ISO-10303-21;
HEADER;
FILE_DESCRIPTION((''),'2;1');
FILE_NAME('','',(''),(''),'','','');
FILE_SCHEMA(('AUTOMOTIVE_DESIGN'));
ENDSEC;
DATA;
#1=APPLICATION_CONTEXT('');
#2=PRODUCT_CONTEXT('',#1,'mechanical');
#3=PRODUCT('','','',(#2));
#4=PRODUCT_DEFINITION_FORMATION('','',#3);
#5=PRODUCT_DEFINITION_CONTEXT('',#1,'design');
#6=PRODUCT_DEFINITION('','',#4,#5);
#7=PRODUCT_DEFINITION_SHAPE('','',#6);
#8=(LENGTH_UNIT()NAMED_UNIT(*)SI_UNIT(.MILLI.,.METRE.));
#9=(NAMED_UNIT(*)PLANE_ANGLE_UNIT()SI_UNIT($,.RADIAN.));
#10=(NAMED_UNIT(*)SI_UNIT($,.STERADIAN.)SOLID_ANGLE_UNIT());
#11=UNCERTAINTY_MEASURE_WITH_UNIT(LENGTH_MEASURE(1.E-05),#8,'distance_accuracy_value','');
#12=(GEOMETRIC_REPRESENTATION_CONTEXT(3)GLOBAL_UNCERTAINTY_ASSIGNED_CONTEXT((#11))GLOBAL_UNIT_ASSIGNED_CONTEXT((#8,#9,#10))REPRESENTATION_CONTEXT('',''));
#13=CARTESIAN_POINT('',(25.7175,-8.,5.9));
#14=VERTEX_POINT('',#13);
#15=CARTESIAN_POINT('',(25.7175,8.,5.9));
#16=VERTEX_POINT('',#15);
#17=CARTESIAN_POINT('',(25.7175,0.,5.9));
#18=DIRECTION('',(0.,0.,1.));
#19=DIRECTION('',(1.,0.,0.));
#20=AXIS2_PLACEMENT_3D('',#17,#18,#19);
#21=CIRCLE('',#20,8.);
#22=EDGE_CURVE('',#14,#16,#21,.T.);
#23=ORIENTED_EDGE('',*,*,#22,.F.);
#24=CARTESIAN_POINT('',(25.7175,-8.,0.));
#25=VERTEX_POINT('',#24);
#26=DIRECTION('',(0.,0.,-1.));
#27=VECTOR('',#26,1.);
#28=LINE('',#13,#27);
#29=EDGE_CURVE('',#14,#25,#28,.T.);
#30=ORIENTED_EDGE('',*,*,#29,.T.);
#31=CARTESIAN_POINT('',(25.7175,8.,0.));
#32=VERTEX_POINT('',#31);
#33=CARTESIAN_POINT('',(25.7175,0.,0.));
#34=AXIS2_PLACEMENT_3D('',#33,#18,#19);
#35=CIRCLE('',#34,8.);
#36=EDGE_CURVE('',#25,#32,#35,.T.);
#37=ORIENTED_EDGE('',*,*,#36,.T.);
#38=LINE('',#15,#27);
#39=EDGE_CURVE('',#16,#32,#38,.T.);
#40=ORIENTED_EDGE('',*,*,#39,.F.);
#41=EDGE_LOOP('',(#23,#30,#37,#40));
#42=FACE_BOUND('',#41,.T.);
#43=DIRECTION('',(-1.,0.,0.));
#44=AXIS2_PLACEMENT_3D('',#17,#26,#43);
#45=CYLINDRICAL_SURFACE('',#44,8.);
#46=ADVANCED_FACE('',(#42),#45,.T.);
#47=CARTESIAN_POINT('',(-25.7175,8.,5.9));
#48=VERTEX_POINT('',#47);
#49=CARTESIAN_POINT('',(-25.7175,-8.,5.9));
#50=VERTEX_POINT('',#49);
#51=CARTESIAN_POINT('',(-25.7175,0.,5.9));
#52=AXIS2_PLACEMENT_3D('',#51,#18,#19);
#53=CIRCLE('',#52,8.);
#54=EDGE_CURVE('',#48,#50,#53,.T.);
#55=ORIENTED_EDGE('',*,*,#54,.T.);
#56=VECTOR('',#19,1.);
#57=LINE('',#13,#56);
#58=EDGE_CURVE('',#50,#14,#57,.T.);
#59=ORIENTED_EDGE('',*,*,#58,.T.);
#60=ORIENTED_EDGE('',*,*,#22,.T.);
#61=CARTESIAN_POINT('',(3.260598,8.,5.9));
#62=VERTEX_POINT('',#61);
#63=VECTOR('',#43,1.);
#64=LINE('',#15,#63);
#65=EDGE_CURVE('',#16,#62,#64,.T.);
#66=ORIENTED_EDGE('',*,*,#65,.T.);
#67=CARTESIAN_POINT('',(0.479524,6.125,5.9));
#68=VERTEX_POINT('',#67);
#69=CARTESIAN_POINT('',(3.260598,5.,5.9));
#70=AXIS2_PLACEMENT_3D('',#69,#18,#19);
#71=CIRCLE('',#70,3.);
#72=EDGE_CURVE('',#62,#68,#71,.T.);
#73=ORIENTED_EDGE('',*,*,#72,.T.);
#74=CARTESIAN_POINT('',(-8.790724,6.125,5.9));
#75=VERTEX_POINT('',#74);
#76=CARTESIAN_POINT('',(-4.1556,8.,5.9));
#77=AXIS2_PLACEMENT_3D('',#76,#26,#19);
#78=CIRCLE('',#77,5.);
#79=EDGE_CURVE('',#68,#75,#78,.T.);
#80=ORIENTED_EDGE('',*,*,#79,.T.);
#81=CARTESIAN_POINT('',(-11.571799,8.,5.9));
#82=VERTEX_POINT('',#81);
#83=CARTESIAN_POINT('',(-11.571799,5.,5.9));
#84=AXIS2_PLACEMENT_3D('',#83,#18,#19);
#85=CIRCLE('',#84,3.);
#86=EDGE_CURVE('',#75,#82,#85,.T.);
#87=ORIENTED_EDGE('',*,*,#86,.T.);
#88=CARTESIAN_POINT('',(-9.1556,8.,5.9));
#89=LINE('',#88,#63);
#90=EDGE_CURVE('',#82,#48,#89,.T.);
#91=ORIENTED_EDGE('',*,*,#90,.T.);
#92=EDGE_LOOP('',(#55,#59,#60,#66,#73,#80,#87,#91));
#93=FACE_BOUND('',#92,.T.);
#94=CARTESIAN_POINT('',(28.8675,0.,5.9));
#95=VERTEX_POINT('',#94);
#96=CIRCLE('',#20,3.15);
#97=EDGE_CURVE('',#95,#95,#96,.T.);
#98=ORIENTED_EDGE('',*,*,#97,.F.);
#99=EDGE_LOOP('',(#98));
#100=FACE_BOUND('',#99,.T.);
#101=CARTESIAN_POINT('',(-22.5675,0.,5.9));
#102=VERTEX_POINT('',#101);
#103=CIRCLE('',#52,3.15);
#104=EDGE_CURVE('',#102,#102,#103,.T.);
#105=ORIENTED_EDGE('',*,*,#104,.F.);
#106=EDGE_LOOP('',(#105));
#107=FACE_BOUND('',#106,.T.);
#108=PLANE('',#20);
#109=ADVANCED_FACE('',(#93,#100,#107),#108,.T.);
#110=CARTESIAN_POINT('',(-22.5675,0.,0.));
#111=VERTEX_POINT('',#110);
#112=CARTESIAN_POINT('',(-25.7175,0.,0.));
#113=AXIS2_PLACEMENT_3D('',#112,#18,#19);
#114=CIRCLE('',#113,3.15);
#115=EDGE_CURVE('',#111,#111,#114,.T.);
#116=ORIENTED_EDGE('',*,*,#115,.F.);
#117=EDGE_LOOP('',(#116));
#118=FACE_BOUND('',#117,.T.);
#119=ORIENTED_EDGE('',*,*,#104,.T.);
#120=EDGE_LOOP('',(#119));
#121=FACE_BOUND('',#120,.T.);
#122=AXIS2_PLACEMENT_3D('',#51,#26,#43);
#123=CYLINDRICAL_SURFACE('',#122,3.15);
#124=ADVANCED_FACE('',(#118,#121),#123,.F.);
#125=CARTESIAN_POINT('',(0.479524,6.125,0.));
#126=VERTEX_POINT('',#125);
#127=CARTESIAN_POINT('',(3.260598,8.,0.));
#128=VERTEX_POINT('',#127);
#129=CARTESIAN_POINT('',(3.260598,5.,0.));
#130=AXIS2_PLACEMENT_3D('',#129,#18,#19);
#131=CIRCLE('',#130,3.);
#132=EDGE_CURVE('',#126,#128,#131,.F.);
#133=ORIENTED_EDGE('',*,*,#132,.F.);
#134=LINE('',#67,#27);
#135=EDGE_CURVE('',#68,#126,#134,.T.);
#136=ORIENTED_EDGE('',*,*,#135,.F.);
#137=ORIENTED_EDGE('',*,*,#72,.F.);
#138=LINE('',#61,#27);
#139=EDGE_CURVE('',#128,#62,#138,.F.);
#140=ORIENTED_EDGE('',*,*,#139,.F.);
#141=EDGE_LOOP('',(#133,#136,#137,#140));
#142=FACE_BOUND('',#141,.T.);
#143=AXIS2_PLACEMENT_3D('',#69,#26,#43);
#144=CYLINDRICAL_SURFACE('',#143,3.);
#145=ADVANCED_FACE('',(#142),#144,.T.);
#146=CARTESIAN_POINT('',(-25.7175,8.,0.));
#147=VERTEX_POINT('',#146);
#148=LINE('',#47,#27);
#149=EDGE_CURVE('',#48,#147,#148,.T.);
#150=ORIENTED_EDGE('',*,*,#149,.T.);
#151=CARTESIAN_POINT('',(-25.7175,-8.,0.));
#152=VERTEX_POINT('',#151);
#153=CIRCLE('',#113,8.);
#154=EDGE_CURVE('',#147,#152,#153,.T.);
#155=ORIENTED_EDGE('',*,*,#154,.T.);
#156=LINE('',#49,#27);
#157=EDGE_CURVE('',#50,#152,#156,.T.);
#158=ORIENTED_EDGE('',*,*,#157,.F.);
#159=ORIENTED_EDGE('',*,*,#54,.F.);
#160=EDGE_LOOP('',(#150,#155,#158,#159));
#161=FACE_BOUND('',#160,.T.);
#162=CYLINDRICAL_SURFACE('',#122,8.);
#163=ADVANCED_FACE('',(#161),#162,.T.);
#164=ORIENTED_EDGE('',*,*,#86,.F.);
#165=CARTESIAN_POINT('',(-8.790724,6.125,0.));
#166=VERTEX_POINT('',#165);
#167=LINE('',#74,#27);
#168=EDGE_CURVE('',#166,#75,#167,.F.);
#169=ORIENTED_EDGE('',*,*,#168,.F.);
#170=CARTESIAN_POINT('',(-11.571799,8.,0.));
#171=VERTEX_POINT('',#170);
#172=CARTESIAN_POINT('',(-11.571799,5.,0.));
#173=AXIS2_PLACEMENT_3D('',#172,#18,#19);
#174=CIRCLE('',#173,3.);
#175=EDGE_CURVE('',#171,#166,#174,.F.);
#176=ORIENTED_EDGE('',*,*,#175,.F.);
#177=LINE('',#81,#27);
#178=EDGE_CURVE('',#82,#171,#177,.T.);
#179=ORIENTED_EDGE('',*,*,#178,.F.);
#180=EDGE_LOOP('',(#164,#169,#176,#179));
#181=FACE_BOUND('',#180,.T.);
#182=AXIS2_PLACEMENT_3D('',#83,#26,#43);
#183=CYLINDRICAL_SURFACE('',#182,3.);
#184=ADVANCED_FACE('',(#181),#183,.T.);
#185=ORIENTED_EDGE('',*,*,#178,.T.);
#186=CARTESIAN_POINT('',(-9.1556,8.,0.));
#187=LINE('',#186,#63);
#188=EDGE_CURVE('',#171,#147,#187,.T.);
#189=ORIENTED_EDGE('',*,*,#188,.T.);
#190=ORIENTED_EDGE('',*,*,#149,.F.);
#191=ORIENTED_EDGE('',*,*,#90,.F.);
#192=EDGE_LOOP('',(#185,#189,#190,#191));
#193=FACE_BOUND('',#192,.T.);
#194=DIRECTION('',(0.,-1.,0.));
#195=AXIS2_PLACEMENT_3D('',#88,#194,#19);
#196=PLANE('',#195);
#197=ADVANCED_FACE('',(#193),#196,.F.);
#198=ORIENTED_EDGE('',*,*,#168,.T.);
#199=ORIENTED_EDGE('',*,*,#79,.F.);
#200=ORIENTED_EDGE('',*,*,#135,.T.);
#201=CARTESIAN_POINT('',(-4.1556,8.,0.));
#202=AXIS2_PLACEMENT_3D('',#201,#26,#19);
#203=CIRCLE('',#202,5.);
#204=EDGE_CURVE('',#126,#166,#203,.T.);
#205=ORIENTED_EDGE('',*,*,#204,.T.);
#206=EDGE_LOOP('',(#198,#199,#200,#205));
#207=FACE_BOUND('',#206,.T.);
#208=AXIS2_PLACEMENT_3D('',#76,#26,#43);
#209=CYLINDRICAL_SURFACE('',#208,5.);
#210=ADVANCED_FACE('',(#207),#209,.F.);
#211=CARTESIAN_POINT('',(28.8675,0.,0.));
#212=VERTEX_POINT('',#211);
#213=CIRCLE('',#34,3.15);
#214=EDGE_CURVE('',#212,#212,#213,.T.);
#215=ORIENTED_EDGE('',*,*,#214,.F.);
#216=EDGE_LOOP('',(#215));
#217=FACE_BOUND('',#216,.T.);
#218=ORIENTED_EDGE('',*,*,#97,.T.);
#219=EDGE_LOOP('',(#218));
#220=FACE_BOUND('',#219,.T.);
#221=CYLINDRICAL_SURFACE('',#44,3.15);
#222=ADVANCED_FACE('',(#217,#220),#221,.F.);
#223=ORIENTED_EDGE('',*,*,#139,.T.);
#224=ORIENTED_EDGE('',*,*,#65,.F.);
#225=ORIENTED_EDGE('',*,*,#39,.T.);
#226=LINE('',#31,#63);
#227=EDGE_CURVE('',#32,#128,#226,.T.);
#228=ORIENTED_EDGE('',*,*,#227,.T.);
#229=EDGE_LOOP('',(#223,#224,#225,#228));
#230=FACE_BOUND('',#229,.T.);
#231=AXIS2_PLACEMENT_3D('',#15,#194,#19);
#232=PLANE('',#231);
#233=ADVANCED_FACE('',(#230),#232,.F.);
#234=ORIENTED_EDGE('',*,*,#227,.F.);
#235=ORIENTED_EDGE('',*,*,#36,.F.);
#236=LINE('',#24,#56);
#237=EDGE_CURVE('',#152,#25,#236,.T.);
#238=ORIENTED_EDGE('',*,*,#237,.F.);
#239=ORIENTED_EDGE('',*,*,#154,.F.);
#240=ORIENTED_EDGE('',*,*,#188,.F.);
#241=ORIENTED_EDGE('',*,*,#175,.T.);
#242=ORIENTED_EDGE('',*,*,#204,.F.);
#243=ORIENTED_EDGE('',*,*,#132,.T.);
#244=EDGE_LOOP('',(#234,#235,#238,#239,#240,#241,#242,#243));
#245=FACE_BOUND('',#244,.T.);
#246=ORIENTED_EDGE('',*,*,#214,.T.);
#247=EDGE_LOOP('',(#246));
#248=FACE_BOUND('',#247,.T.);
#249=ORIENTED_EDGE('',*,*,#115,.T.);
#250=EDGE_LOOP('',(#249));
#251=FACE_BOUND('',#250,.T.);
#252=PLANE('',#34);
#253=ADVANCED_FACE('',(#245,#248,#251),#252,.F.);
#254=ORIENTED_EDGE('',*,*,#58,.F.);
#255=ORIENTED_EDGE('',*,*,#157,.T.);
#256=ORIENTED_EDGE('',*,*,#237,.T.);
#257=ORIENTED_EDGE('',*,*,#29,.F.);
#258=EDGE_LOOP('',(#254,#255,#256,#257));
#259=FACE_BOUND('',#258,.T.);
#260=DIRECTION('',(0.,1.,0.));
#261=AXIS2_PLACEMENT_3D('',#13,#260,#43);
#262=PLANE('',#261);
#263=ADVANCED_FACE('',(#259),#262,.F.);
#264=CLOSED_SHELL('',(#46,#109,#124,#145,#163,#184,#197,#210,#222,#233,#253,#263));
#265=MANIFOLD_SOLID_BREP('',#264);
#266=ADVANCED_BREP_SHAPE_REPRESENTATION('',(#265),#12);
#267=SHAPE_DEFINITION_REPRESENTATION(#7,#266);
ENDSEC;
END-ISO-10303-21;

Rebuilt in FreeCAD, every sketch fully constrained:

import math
import FreeCAD as App
import Part
import Sketcher

V = App.Vector


def edges_at(feature, points):
    """Names of the edges that pass closest to the given points."""
    edges = feature.Shape.Edges
    near = lambda p: min(range(len(edges)), key=lambda i: edges[i].distToShape(Part.Vertex(*p))[0])
    return sorted({f"Edge{near(p) + 1}" for p in points})

doc = App.newDocument("Part")
body = doc.addObject("PartDesign::Body", "Body")

# Sketch on XY plane
sketch1 = doc.addObject("Sketcher::SketchObject", "Sketch")
body.addObject(sketch1)
sketch1.AttachmentSupport = (doc.XY_Plane, [""])
sketch1.MapMode = "FlatFace"
sketch1.addGeometry([
    Part.LineSegment(V(-25.7, -8, 0), V(25.7, -8, 0)),  # 0
    Part.ArcOfCircle(Part.Circle(V(25.7, 0, 0), V(0, 0, 1), 8), math.radians(-90), math.radians(90)),  # 1
    Part.LineSegment(V(25.7, 8, 0), V(0.8, 8, 0)),  # 2
    Part.ArcOfCircle(Part.Circle(V(-4.2, 8, 0), V(0, 0, 1), 5), math.radians(180), math.radians(360)),  # 3
    Part.LineSegment(V(-9.2, 8, 0), V(-25.7, 8, 0)),  # 4
    Part.ArcOfCircle(Part.Circle(V(-25.7, 0, 0), V(0, 0, 1), 8), math.radians(90), math.radians(270)),  # 5
    Part.Circle(V(25.7, 0, 0), V(0, 0, 1), 3.1),  # 6
    Part.Circle(V(-25.7, 0, 0), V(0, 0, 1), 3.1),  # 7
], False)
sketch1.addConstraint([
    Sketcher.Constraint("Tangent", 0, 2, 1, 1),
    Sketcher.Constraint("Tangent", 1, 2, 2, 1),
    Sketcher.Constraint("Coincident", 2, 2, 3, 2),
    Sketcher.Constraint("Coincident", 3, 1, 4, 1),
    Sketcher.Constraint("Tangent", 4, 2, 5, 1),
    Sketcher.Constraint("Tangent", 5, 2, 0, 1),
    Sketcher.Constraint("Horizontal", 0),
    Sketcher.Constraint("Horizontal", 2),
    Sketcher.Constraint("Horizontal", 4),
    Sketcher.Constraint("Coincident", 6, 3, 1, 3),
    Sketcher.Constraint("Coincident", 7, 3, 5, 3),
    Sketcher.Constraint("Equal", 1, 5),
    Sketcher.Constraint("Equal", 6, 7),
    Sketcher.Constraint("Symmetric", 1, 3, 5, 3, -1, 1),
    Sketcher.Constraint("Horizontal", 3, 3, 1, 2),
    Sketcher.Constraint("Radius", 1, 8.0),
    Sketcher.Constraint("Radius", 3, 5.0),
    Sketcher.Constraint("Diameter", 6, 6.3),
    Sketcher.Constraint("DistanceX", 0, 1, 0, 2, 51.435),
    Sketcher.Constraint("DistanceX", 2, 2, 2, 1, 24.8731),
])
pad1 = doc.addObject("PartDesign::Pad", "Pad")
body.addObject(pad1)
pad1.Profile = sketch1
pad1.Length = 5.9
doc.recompute()

fillet = doc.addObject("PartDesign::Fillet", "Fillet")
body.addObject(fillet)
fillet.Base = (pad1, edges_at(pad1, [(-9.156, 8, 2.95), (0.844, 8, 2.95)]))
fillet.Radius = 3

doc.recompute()
